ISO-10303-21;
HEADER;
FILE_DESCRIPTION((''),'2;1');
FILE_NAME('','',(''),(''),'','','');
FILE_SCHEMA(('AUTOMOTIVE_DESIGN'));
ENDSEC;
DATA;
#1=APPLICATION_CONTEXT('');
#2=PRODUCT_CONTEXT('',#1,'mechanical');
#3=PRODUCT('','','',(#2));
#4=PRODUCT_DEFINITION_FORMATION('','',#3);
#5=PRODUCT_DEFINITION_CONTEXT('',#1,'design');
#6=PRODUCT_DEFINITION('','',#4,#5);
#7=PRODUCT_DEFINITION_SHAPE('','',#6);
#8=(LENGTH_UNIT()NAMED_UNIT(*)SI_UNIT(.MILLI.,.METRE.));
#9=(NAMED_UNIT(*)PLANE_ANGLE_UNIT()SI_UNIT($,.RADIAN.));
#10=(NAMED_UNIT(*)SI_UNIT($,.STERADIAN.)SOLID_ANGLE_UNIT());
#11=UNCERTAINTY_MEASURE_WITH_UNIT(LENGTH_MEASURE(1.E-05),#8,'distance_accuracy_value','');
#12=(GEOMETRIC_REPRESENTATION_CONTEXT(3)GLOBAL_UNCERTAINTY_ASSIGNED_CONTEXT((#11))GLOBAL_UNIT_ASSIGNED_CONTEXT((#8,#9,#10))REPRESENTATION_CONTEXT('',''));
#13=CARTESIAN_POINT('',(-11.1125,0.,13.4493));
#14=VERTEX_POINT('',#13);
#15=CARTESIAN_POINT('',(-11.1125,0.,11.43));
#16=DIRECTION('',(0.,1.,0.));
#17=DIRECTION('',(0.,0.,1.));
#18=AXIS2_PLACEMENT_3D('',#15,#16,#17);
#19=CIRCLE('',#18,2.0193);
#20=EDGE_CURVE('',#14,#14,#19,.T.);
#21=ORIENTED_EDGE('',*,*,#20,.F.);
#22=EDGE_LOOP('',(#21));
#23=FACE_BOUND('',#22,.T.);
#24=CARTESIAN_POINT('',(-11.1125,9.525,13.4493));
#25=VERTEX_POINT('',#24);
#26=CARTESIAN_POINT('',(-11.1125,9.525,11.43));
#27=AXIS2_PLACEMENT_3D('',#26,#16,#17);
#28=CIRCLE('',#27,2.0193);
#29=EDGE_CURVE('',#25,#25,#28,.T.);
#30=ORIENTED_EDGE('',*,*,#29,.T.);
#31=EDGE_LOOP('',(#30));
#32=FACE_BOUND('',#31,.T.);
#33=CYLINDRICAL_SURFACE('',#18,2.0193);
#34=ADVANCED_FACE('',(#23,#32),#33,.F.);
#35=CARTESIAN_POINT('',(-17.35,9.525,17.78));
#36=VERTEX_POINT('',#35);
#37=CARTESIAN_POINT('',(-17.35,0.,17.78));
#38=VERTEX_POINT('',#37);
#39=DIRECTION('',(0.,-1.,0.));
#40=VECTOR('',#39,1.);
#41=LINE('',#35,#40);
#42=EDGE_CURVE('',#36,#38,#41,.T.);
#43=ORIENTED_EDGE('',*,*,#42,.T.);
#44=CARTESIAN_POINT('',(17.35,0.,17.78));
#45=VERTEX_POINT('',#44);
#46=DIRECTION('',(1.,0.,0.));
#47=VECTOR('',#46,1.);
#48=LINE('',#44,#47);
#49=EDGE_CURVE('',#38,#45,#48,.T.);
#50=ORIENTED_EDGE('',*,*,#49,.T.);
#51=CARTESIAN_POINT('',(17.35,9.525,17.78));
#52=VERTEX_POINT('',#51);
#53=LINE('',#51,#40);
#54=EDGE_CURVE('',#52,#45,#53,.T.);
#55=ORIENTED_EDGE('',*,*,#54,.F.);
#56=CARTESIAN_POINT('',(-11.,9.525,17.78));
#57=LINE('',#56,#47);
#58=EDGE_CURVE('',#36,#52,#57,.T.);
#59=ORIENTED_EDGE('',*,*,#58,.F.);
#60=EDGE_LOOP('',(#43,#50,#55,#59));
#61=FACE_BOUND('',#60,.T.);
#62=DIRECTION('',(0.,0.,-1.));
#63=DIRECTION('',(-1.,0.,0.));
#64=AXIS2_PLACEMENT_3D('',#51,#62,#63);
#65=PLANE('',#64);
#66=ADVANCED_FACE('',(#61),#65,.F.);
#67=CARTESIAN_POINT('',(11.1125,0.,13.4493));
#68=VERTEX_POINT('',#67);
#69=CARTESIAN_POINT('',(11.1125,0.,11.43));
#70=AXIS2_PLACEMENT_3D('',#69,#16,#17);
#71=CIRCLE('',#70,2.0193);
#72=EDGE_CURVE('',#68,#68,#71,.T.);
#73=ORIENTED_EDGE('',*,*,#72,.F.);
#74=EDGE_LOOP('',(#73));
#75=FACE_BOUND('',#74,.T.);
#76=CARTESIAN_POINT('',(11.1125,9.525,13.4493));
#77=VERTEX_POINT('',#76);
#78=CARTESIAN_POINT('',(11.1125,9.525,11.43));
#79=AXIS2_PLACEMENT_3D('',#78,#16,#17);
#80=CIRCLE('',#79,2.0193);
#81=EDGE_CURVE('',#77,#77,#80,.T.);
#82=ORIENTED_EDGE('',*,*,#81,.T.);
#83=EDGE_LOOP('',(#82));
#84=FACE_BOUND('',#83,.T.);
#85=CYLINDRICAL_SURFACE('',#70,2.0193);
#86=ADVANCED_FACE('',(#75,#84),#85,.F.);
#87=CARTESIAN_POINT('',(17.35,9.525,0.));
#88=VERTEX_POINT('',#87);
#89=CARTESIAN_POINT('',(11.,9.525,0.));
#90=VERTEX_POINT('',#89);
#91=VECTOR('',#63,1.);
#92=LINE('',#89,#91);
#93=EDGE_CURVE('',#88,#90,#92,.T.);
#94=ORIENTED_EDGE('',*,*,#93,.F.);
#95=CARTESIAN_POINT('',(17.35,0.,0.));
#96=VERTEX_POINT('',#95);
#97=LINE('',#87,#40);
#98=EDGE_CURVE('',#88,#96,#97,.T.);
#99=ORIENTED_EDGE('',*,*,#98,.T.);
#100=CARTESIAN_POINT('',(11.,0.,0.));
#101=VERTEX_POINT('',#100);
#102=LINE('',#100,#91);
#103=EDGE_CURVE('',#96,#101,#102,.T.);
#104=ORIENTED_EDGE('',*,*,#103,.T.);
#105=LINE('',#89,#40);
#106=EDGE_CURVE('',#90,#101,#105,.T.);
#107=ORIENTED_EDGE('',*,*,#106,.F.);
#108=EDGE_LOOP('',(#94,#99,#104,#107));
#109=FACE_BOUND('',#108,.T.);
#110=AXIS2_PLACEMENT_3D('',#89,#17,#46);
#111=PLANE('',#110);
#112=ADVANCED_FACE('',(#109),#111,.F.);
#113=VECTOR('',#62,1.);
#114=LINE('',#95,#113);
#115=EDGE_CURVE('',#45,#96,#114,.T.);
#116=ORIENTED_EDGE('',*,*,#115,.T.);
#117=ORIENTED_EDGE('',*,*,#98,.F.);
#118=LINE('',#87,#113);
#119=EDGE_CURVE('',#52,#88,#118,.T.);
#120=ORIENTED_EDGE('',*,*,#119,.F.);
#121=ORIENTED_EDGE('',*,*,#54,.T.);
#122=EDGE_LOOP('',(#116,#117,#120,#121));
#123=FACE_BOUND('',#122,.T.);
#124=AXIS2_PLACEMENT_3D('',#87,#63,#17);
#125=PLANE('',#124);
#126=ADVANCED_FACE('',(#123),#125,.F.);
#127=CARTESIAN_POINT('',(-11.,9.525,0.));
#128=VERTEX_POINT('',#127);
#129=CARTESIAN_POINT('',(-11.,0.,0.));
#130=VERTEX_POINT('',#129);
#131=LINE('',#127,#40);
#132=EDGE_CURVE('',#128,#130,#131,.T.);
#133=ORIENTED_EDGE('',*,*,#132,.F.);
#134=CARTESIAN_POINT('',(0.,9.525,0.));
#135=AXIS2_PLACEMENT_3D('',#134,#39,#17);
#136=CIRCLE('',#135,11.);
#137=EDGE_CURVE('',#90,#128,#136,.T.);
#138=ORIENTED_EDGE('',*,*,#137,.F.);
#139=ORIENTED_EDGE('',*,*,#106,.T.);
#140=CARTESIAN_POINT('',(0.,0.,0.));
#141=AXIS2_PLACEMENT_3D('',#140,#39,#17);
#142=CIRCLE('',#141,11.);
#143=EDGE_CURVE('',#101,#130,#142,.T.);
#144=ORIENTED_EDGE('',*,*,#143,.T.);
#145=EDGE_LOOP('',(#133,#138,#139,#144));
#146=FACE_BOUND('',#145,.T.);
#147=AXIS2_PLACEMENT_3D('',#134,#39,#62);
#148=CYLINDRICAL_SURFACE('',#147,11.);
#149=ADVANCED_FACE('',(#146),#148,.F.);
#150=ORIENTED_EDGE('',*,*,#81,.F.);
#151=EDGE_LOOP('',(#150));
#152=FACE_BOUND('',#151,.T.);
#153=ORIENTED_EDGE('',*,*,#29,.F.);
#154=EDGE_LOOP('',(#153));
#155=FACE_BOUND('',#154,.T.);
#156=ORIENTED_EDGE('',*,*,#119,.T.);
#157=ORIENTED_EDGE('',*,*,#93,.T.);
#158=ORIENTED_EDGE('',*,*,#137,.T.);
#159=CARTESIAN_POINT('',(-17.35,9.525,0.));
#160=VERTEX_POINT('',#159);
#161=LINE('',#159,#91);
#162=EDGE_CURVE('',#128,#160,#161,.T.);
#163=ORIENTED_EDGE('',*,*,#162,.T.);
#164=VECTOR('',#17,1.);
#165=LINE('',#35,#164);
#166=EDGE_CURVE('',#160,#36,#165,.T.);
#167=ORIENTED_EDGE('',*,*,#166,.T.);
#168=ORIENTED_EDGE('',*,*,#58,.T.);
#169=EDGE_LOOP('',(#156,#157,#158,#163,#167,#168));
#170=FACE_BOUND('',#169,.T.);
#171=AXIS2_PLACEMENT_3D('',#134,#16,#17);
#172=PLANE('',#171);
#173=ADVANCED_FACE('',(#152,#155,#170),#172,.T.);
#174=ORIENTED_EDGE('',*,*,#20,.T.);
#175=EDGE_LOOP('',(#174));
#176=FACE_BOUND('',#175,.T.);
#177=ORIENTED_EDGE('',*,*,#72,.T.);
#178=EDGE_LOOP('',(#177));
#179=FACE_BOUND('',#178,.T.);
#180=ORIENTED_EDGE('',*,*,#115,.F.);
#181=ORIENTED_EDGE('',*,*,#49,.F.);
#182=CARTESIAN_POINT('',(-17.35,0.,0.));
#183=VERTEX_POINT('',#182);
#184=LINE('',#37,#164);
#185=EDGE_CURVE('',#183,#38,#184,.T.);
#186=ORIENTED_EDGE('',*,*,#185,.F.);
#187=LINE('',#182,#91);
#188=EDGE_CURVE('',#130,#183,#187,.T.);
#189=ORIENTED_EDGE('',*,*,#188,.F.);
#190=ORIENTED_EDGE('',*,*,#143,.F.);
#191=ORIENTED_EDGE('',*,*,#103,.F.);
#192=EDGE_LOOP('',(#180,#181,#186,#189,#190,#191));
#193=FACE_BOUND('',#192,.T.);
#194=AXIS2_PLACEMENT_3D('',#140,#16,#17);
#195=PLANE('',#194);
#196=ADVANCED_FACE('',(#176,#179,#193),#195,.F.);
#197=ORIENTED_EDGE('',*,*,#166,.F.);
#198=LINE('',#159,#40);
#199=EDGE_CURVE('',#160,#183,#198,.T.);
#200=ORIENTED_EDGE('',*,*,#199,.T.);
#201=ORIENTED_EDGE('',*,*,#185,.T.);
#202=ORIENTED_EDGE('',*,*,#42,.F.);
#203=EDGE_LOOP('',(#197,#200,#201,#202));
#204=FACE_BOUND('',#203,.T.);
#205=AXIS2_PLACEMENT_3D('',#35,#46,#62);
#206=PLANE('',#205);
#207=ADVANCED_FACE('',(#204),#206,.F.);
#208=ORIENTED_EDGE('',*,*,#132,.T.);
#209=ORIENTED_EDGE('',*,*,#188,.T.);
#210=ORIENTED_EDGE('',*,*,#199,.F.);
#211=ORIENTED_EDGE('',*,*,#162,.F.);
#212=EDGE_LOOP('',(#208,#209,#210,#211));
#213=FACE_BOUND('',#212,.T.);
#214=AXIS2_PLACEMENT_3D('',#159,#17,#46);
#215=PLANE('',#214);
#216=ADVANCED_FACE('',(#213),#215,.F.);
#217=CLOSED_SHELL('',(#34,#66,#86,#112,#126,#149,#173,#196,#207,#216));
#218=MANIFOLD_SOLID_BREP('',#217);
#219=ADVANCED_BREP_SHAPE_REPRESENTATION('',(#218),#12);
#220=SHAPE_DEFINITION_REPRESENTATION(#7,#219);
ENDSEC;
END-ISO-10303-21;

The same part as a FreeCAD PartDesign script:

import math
import FreeCAD as App
import Part
import Sketcher
Q = App.Units.Quantity

doc = App.newDocument("Part")
body = doc.addObject("PartDesign::Body", "Body")

# Sketch on XZ plane
sketch1 = body.newObject("Sketcher::SketchObject", "Sketch")
sketch1.AttachmentSupport = (doc.getObject("XZ_Plane"), [""])
sketch1.MapMode = "FlatFace"
sketch1.addGeometry(Part.LineSegment(App.Vector(17, 18, 0), App.Vector(17, 0, 0)), False)
sketch1.addGeometry(Part.LineSegment(App.Vector(17, 0, 0), App.Vector(11, 0, 0)), False)
sketch1.addGeometry(Part.ArcOfCircle(Part.Circle(App.Vector(0, 0, 0), App.Vector(0, 0, 1), 11), math.radians(0), math.radians(180)), False)
sketch1.addGeometry(Part.LineSegment(App.Vector(-11, 0, 0), App.Vector(-17, 0, 0)), False)
sketch1.addGeometry(Part.LineSegment(App.Vector(-17, 0, 0), App.Vector(-17, 18, 0)), False)
sketch1.addGeometry(Part.LineSegment(App.Vector(-17, 18, 0), App.Vector(17, 18, 0)), False)
sketch1.addConstraint(Sketcher.Constraint("Coincident", 0, 2, 1, 1))
sketch1.addConstraint(Sketcher.Constraint("Coincident", 1, 2, 2, 1))
sketch1.addConstraint(Sketcher.Constraint("Coincident", 2, 2, 3, 1))
sketch1.addConstraint(Sketcher.Constraint("Coincident", 3, 2, 4, 1))
sketch1.addConstraint(Sketcher.Constraint("Coincident", 4, 2, 5, 1))
sketch1.addConstraint(Sketcher.Constraint("Coincident", 5, 2, 0, 1))
sketch1.addConstraint(Sketcher.Constraint("Vertical", 0))
sketch1.addConstraint(Sketcher.Constraint("Horizontal", 1))
sketch1.addConstraint(Sketcher.Constraint("Horizontal", 3))
sketch1.addConstraint(Sketcher.Constraint("Vertical", 4))
sketch1.addConstraint(Sketcher.Constraint("Horizontal", 5))
sketch1.addConstraint(Sketcher.Constraint("Coincident", 2, 3, -1, 1))
sketch1.addConstraint(Sketcher.Constraint("Symmetric", 0, 2, 3, 2, -1, 1))
sketch1.addConstraint(Sketcher.Constraint("PointOnObject", 0, 2, -1))
sketch1.addConstraint(Sketcher.Constraint("DistanceY", 0, 2, 0, 1, Q("0.7 in")))
sketch1.addConstraint(Sketcher.Constraint("DistanceX", 1, 2, 1, 1, Q("0.25 in")))
sketch1.addConstraint(Sketcher.Constraint("Radius", 2, Q("11 mm")))
pad1 = body.newObject("PartDesign::Pad", "Pad")
pad1.Profile = sketch1
pad1.Length = Q("0.375 in")
pad1.Reversed = True

# Sketch on XZ plane
sketch2 = body.newObject("Sketcher::SketchObject", "Sketch001")
sketch2.AttachmentSupport = (doc.getObject("XZ_Plane"), [""])
sketch2.MapMode = "FlatFace"
sketch2.AttachmentOffset = App.Placement(App.Vector(0, 0, -0.375 * 25.4), App.Rotation())
sketch2.addGeometry(Part.Circle(App.Vector(11.1, 11.4, 0), App.Vector(0, 0, 1), 2), False)
sketch2.addGeometry(Part.Circle(App.Vector(-11.1, 11.4, 0), App.Vector(0, 0, 1), 2), False)
sketch2.addConstraint(Sketcher.Constraint("Equal", 0, 1))
sketch2.addConstraint(Sketcher.Constraint("Symmetric", 0, 3, 1, 3, -2))
sketch2.addConstraint(Sketcher.Constraint("Diameter", 0, Q("0.159 in")))
sketch2.addConstraint(Sketcher.Constraint("DistanceY", -1, 1, 0, 3, Q("0.45 in")))
sketch2.addConstraint(Sketcher.Constraint("DistanceX", -1, 1, 0, 3, Q("0.4375 in")))
pocket1 = body.newObject("PartDesign::Pocket", "Pocket")
pocket1.Profile = sketch2
pocket1.Type = "ThroughAll"
pocket1.Reversed = True

doc.recompute()
